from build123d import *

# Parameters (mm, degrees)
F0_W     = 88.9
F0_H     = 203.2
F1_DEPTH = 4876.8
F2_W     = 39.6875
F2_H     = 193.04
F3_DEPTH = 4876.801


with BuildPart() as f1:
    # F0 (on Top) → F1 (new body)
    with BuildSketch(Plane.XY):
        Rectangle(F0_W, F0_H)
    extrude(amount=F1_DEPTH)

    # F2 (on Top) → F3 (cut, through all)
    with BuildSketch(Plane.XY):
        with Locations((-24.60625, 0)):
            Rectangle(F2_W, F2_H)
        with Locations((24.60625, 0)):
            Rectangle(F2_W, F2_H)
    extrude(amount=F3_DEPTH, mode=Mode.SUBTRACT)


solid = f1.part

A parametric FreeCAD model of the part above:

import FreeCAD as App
import Part
import Sketcher
Q = App.Units.Quantity

doc = App.newDocument("Part")
body = doc.addObject("PartDesign::Body", "Body")

sketch1 = body.newObject("Sketcher::SketchObject", "Sketch")
sketch1.AttachmentSupport = (doc.getObject("XY_Plane"), [""])
sketch1.MapMode = "FlatFace"
sketch1.addGeometry([
    Part.LineSegment(App.Vector(-44, 102, 0), App.Vector(-44, -102, 0)),
    Part.LineSegment(App.Vector(-44, -102, 0), App.Vector(44, -102, 0)),
    Part.LineSegment(App.Vector(44, -102, 0), App.Vector(44, 102, 0)),
    Part.LineSegment(App.Vector(44, 102, 0), App.Vector(-44, 102, 0)),
], False)
sketch1.addConstraint([
    Sketcher.Constraint("Coincident", 0, 2, 1, 1),
    Sketcher.Constraint("Coincident", 1, 2, 2, 1),
    Sketcher.Constraint("Coincident", 2, 2, 3, 1),
    Sketcher.Constraint("Coincident", 3, 2, 0, 1),
    Sketcher.Constraint("Vertical", 0),
    Sketcher.Constraint("Horizontal", 1),
    Sketcher.Constraint("Vertical", 2),
    Sketcher.Constraint("Horizontal", 3),
    Sketcher.Constraint("Symmetric", 0, 2, 2, 2, -1, 1),
    Sketcher.Constraint("DistanceY", 0, 2, 0, 1, Q("8 in")),
    Sketcher.Constraint("DistanceX", 1, 1, 1, 2, Q("3.5 in")),
])
pad1 = body.newObject("PartDesign::Pad", "Pad")
pad1.Profile = sketch1
pad1.Length = Q("192 in")

sketch2 = body.newObject("Sketcher::SketchObject", "Sketch001")
sketch2.AttachmentSupport = (doc.getObject("XY_Plane"), [""])
sketch2.MapMode = "FlatFace"
sketch2.addGeometry([
    Part.LineSegment(App.Vector(-44, 97, 0), App.Vector(-44, -97, 0)),
    Part.LineSegment(App.Vector(-44, -97, 0), App.Vector(-5, -97, 0)),
    Part.LineSegment(App.Vector(-5, -97, 0), App.Vector(-5, 97, 0)),
    Part.LineSegment(App.Vector(-5, 97, 0), App.Vector(-44, 97, 0)),
    Part.LineSegment(App.Vector(5, 97, 0), App.Vector(5, -97, 0)),
    Part.LineSegment(App.Vector(5, -97, 0), App.Vector(44, -97, 0)),
    Part.LineSegment(App.Vector(44, -97, 0), App.Vector(44, 97, 0)),
    Part.LineSegment(App.Vector(44, 97, 0), App.Vector(5, 97, 0)),
], False)
sketch2.addConstraint([
    Sketcher.Constraint("Coincident", 0, 2, 1, 1),
    Sketcher.Constraint("Coincident", 1, 2, 2, 1),
    Sketcher.Constraint("Coincident", 2, 2, 3, 1),
    Sketcher.Constraint("Coincident", 3, 2, 0, 1),
    Sketcher.Constraint("Coincident", 4, 2, 5, 1),
    Sketcher.Constraint("Coincident", 5, 2, 6, 1),
    Sketcher.Constraint("Coincident", 6, 2, 7, 1),
    Sketcher.Constraint("Coincident", 7, 2, 4, 1),
    Sketcher.Constraint("Vertical", 0),
    Sketcher.Constraint("Horizontal", 1),
    Sketcher.Constraint("Vertical", 2),
    Sketcher.Constraint("Horizontal", 3),
    Sketcher.Constraint("Vertical", 4),
    Sketcher.Constraint("Horizontal", 5),
    Sketcher.Constraint("Vertical", 6),
    Sketcher.Constraint("Horizontal", 7),
    Sketcher.Constraint("Symmetric", 2, 2, 4, 2, -1, 1),
    Sketcher.Constraint("Symmetric", 0, 2, 6, 2, -1, 1),
    Sketcher.Constraint("Horizontal", 1, 2, 4, 2),
    Sketcher.Constraint("DistanceY", 0, 2, 0, 1, Q("7.6 in")),
    Sketcher.Constraint("DistanceX", 0, 2, 5, 2, Q("3.5 in")),
    Sketcher.Constraint("DistanceX", 1, 1, 1, 2, Q("1.5625 in")),
])
pocket1 = body.newObject("PartDesign::Pocket", "Pocket")
pocket1.Profile = sketch2
pocket1.Type = "ThroughAll"
pocket1.Reversed = True

doc.recompute()
